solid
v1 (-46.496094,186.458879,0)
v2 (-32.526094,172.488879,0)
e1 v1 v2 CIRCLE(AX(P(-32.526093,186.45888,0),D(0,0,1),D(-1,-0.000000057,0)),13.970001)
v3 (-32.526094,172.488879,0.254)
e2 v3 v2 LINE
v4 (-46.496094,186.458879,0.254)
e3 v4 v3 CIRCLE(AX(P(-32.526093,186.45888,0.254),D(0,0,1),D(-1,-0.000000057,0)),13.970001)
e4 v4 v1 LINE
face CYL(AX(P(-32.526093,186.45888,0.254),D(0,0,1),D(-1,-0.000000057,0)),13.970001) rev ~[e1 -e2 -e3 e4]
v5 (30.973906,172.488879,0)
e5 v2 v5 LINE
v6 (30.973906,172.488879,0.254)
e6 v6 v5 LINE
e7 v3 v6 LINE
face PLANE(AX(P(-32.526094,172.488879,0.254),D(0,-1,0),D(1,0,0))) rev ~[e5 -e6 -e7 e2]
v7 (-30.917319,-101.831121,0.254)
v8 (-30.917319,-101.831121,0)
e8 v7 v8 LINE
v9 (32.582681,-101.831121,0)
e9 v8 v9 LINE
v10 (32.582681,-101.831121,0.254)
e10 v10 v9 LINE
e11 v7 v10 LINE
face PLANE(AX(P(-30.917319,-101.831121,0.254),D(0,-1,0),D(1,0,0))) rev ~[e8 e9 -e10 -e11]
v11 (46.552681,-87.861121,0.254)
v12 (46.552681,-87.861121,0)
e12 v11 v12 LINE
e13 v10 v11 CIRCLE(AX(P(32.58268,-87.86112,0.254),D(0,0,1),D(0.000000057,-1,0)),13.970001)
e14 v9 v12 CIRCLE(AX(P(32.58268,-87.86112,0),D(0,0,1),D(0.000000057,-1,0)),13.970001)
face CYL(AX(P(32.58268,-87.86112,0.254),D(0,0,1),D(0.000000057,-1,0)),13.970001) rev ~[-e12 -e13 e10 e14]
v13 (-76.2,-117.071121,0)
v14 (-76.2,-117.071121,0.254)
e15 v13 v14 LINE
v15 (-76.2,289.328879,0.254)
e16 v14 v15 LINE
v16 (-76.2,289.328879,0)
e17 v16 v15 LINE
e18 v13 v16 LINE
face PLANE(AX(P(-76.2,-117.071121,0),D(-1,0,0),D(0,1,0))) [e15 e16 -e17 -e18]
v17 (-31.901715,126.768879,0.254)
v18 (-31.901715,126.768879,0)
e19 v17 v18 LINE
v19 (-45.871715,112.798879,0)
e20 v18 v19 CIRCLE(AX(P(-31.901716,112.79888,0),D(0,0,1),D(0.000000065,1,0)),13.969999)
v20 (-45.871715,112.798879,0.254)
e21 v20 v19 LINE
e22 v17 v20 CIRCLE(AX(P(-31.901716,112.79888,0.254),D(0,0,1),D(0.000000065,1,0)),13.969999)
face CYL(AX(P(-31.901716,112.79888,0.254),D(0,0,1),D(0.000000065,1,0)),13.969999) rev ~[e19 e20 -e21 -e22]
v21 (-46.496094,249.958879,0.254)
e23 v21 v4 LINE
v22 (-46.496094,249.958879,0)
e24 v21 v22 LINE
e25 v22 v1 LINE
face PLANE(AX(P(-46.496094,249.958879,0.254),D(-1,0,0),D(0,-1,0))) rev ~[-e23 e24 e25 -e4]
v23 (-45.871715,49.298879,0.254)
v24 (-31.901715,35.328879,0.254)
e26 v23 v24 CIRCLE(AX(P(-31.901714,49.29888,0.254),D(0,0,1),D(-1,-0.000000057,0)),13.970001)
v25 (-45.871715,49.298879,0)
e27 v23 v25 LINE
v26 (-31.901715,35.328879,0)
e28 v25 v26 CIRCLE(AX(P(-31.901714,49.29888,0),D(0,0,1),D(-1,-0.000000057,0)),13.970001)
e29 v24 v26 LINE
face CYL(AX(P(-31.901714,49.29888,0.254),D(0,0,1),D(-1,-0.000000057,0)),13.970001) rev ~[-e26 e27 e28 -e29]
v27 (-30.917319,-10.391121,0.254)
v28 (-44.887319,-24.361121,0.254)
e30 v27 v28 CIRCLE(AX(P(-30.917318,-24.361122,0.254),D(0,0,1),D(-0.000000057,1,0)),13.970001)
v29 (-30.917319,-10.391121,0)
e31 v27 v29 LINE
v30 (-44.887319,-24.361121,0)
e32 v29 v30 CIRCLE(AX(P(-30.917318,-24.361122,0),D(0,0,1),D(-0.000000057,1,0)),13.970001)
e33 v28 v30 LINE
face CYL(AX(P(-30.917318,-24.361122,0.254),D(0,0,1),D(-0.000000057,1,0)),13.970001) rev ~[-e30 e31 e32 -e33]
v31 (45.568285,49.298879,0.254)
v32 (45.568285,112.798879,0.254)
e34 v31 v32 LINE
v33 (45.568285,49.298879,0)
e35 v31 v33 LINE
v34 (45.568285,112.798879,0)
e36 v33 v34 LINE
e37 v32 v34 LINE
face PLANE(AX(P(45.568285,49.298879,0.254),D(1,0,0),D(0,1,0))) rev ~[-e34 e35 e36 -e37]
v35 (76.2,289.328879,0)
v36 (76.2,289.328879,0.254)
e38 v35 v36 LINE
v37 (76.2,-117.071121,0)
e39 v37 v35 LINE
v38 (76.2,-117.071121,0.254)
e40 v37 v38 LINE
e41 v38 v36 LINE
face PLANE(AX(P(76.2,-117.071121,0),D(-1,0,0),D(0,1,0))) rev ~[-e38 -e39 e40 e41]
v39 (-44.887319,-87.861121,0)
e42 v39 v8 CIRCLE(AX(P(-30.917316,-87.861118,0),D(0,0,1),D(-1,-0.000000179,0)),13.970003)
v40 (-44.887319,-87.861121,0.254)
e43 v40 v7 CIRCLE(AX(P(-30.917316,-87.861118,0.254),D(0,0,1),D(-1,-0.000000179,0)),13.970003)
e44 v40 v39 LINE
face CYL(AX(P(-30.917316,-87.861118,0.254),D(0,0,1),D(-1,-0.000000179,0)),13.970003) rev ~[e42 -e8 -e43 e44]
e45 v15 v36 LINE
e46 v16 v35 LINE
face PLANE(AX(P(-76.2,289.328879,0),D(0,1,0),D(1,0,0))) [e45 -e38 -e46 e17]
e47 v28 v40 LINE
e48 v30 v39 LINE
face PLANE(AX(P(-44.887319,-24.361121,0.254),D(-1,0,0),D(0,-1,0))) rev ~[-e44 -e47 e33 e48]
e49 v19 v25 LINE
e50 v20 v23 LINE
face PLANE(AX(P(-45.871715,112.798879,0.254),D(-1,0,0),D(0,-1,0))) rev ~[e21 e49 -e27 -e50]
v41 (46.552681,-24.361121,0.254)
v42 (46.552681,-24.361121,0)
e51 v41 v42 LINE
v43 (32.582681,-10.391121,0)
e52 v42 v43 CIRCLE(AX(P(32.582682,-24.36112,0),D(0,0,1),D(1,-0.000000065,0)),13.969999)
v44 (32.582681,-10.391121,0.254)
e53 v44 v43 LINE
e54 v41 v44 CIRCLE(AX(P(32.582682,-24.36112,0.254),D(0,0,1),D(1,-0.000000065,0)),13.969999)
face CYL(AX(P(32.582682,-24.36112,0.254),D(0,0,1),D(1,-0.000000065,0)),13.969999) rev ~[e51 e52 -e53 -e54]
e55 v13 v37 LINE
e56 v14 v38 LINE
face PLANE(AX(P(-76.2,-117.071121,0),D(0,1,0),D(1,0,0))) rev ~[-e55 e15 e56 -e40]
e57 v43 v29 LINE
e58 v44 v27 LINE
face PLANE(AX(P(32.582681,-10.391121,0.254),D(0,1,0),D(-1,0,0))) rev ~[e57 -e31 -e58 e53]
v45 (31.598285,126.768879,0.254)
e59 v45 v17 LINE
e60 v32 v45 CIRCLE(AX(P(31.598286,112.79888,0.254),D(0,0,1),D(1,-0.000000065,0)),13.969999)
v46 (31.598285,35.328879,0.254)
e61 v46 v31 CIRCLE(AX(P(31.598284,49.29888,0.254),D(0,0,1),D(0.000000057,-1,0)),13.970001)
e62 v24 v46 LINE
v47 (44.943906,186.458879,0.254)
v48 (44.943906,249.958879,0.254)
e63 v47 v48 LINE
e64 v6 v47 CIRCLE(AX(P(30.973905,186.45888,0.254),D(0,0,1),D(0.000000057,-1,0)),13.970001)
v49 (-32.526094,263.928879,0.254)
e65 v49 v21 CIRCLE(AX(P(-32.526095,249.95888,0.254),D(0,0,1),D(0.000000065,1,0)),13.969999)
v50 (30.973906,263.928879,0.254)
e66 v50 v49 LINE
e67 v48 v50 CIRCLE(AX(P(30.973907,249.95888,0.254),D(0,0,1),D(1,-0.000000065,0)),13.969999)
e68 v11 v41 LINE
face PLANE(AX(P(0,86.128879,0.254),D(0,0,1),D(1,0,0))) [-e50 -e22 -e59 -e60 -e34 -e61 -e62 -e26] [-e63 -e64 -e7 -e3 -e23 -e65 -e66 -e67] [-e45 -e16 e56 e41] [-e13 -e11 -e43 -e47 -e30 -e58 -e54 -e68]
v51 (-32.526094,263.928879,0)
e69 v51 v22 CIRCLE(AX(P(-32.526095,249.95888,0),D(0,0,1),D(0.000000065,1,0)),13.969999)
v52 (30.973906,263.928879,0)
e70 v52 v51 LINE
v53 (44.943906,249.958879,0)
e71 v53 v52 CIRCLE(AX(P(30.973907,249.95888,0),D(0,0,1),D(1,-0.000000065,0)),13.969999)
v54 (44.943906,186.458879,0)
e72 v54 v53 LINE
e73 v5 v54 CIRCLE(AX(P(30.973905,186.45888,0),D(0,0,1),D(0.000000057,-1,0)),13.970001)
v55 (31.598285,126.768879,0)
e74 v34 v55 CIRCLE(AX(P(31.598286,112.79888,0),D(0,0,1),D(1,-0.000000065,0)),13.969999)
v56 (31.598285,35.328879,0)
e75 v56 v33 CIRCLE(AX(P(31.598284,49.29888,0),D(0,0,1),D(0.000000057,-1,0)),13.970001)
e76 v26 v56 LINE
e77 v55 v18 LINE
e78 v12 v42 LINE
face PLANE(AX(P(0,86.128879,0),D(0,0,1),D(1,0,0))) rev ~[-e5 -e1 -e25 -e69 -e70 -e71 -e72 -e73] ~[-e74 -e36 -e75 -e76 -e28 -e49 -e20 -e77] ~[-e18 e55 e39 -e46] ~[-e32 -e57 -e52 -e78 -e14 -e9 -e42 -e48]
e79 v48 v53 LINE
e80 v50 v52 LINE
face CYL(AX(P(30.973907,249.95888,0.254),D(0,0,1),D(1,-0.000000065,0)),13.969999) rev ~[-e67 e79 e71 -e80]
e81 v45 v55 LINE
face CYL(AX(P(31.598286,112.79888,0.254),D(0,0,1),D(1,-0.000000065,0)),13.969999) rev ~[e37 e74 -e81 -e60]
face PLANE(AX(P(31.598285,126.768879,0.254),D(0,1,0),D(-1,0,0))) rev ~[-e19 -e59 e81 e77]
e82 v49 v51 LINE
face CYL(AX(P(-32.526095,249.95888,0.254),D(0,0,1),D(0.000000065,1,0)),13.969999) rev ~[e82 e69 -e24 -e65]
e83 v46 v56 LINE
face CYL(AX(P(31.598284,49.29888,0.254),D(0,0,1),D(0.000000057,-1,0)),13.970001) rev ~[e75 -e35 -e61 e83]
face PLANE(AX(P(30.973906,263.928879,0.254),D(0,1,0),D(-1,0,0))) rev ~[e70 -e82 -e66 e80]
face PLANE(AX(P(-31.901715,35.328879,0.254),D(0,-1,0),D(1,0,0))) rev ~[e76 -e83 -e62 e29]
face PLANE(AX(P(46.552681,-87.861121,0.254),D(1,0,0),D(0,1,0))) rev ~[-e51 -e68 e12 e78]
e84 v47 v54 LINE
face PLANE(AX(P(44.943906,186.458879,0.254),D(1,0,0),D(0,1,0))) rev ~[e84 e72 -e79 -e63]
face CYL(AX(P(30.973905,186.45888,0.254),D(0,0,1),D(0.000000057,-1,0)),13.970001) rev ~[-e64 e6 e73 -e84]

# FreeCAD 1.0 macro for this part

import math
import FreeCAD as App
import Part
import Sketcher

V = App.Vector
Q = App.Units.Quantity

doc = App.newDocument("Part")
body = doc.addObject("PartDesign::Body", "Body")

# Sketch on XY plane
sketch1 = body.newObject("Sketcher::SketchObject", "Sketch")
sketch1.AttachmentSupport = (doc.getObject("XY_Plane"), [""])
sketch1.MapMode = "FlatFace"
sketch1.addGeometry(Part.LineSegment(V(-76.2, 289.328879, 0), V(-76.2, -117.071121, 0)), False)
sketch1.addGeometry(Part.LineSegment(V(-76.2, -117.071121, 0), V(76.2, -117.071121, 0)), False)
sketch1.addGeometry(Part.LineSegment(V(76.2, -117.071121, 0), V(76.2, 289.328879, 0)), False)
sketch1.addGeometry(Part.LineSegment(V(76.2, 289.328879, 0), V(-76.2, 289.328879, 0)), False)
sketch1.addConstraint(Sketcher.Constraint("Coincident", 0, 2, 1, 1))
sketch1.addConstraint(Sketcher.Constraint("Coincident", 1, 2, 2, 1))
sketch1.addConstraint(Sketcher.Constraint("Coincident", 2, 2, 3, 1))
sketch1.addConstraint(Sketcher.Constraint("Coincident", 3, 2, 0, 1))
sketch1.addConstraint(Sketcher.Constraint("Vertical", 0))
sketch1.addConstraint(Sketcher.Constraint("Horizontal", 1))
sketch1.addConstraint(Sketcher.Constraint("Vertical", 2))
sketch1.addConstraint(Sketcher.Constraint("Horizontal", 3))
sketch1.addConstraint(Sketcher.Constraint("DistanceX", 1, 1, 1, 2, Q("6 in")))
sketch1.addConstraint(Sketcher.Constraint("DistanceY", 0, 2, 0, 1, Q("16 in")))
sketch1.addConstraint(Sketcher.Constraint("DistanceX", 0, 2, -1, 1, Q("3 in")))
sketch1.addConstraint(Sketcher.Constraint("DistanceY", 0, 2, -1, 1, 117.071121))
pad1 = body.newObject("PartDesign::Pad", "Pad")
pad1.Profile = sketch1
pad1.Length = Q("0.01 in")

# Sketch on XY plane
sketch2 = body.newObject("Sketcher::SketchObject", "Sketch001")
sketch2.AttachmentSupport = (doc.getObject("XY_Plane"), [""])
sketch2.MapMode = "FlatFace"
sketch2.AttachmentOffset = App.Placement(V(0, 0, 0.01 * 25.4), App.Rotation())
sketch2.addGeometry(Part.LineSegment(V(31.598285, 126.768879, 0), V(-31.901715, 126.768879, 0)), False)
sketch2.addGeometry(Part.ArcOfCircle(Part.Circle(V(-31.901716, 112.79888, 0), V(0, 0, 1), 13.969999), math.radians(89.999996), math.radians(180.000004)), False)
sketch2.addGeometry(Part.LineSegment(V(-45.871715, 112.798879, 0), V(-45.871715, 49.298879, 0)), False)
sketch2.addGeometry(Part.ArcOfCircle(Part.Circle(V(-31.901714, 49.29888, 0), V(0, 0, 1), 13.970001), math.radians(-179.999997), math.radians(-90.000003)), False)
sketch2.addGeometry(Part.LineSegment(V(-31.901715, 35.328879, 0), V(31.598285, 35.328879, 0)), False)
sketch2.addGeometry(Part.ArcOfCircle(Part.Circle(V(31.598284, 49.29888, 0), V(0, 0, 1), 13.970001), math.radians(-89.999997), math.radians(-0.000003)), False)
sketch2.addGeometry(Part.LineSegment(V(45.568285, 49.298879, 0), V(45.568285, 112.798879, 0)), False)
sketch2.addGeometry(Part.ArcOfCircle(Part.Circle(V(31.598286, 112.79888, 0), V(0, 0, 1), 13.969999), math.radians(-0.000004), math.radians(90.000004)), False)
sketch2.addConstraint(Sketcher.Constraint("Tangent", 0, 2, 1, 1))
sketch2.addConstraint(Sketcher.Constraint("Tangent", 1, 2, 2, 1))
sketch2.addConstraint(Sketcher.Constraint("Tangent", 2, 2, 3, 1))
sketch2.addConstraint(Sketcher.Constraint("Tangent", 3, 2, 4, 1))
sketch2.addConstraint(Sketcher.Constraint("Tangent", 4, 2, 5, 1))
sketch2.addConstraint(Sketcher.Constraint("Tangent", 5, 2, 6, 1))
sketch2.addConstraint(Sketcher.Constraint("Tangent", 6, 2, 7, 1))
sketch2.addConstraint(Sketcher.Constraint("Tangent", 7, 2, 0, 1))
sketch2.addConstraint(Sketcher.Constraint("Horizontal", 0))
sketch2.addConstraint(Sketcher.Constraint("Vertical", 2))
sketch2.addConstraint(Sketcher.Constraint("Horizontal", 4))
sketch2.addConstraint(Sketcher.Constraint("Vertical", 6))
sketch2.addConstraint(Sketcher.Constraint("Equal", 1, 3))
sketch2.addConstraint(Sketcher.Constraint("Equal", 3, 5))
sketch2.addConstraint(Sketcher.Constraint("Equal", 5, 7))
sketch2.addConstraint(Sketcher.Constraint("Equal", 4, 2))
sketch2.addConstraint(Sketcher.Constraint("Radius", 1, Q("0.55 in")))
sketch2.addConstraint(Sketcher.Constraint("DistanceX", 0, 2, 0, 1, Q("2.5 in")))
sketch2.addConstraint(Sketcher.Constraint("DistanceY", -1, 1, 1, 3, 112.79888))
sketch2.addConstraint(Sketcher.Constraint("DistanceX", 1, 3, -1, 1, 31.901716))
pocket1 = body.newObject("PartDesign::Pocket", "Pocket")
pocket1.Profile = sketch2
pocket1.Type = "ThroughAll"

# Sketch on XY plane
sketch3 = body.newObject("Sketcher::SketchObject", "Sketch002")
sketch3.AttachmentSupport = (doc.getObject("XY_Plane"), [""])
sketch3.MapMode = "FlatFace"
sketch3.AttachmentOffset = App.Placement(V(0, 0, 0.01 * 25.4), App.Rotation())
sketch3.addGeometry(Part.LineSegment(V(30.973906, 263.928879, 0), V(-32.526094, 263.928879, 0)), False)
sketch3.addGeometry(Part.ArcOfCircle(Part.Circle(V(-32.526095, 249.95888, 0), V(0, 0, 1), 13.969999), math.radians(89.999996), math.radians(180.000004)), False)
sketch3.addGeometry(Part.LineSegment(V(-46.496094, 249.958879, 0), V(-46.496094, 186.458879, 0)), False)
sketch3.addGeometry(Part.ArcOfCircle(Part.Circle(V(-32.526093, 186.45888, 0), V(0, 0, 1), 13.970001), math.radians(-179.999997), math.radians(-90.000003)), False)
sketch3.addGeometry(Part.LineSegment(V(-32.526094, 172.488879, 0), V(30.973906, 172.488879, 0)), False)
sketch3.addGeometry(Part.ArcOfCircle(Part.Circle(V(30.973905, 186.45888, 0), V(0, 0, 1), 13.970001), math.radians(-89.999997), math.radians(-0.000003)), False)
sketch3.addGeometry(Part.LineSegment(V(44.943906, 186.458879, 0), V(44.943906, 249.958879, 0)), False)
sketch3.addGeometry(Part.ArcOfCircle(Part.Circle(V(30.973907, 249.95888, 0), V(0, 0, 1), 13.969999), math.radians(-0.000004), math.radians(90.000004)), False)
sketch3.addConstraint(Sketcher.Constraint("Tangent", 0, 2, 1, 1))
sketch3.addConstraint(Sketcher.Constraint("Tangent", 1, 2, 2, 1))
sketch3.addConstraint(Sketcher.Constraint("Tangent", 2, 2, 3, 1))
sketch3.addConstraint(Sketcher.Constraint("Tangent", 3, 2, 4, 1))
sketch3.addConstraint(Sketcher.Constraint("Tangent", 4, 2, 5, 1))
sketch3.addConstraint(Sketcher.Constraint("Tangent", 5, 2, 6, 1))
sketch3.addConstraint(Sketcher.Constraint("Tangent", 6, 2, 7, 1))
sketch3.addConstraint(Sketcher.Constraint("Tangent", 7, 2, 0, 1))
sketch3.addConstraint(Sketcher.Constraint("Horizontal", 0))
sketch3.addConstraint(Sketcher.Constraint("Vertical", 2))
sketch3.addConstraint(Sketcher.Constraint("Horizontal", 4))
sketch3.addConstraint(Sketcher.Constraint("Vertical", 6))
sketch3.addConstraint(Sketcher.Constraint("Equal", 1, 3))
sketch3.addConstraint(Sketcher.Constraint("Equal", 3, 5))
sketch3.addConstraint(Sketcher.Constraint("Equal", 5, 7))
sketch3.addConstraint(Sketcher.Constraint("Equal", 4, 2))
sketch3.addConstraint(Sketcher.Constraint("Radius", 1, Q("0.55 in")))
sketch3.addConstraint(Sketcher.Constraint("DistanceX", 0, 2, 0, 1, Q("2.5 in")))
sketch3.addConstraint(Sketcher.Constraint("DistanceY", -1, 1, 1, 3, 249.95888))
sketch3.addConstraint(Sketcher.Constraint("DistanceX", 1, 3, -1, 1, 32.526095))
pocket2 = body.newObject("PartDesign::Pocket", "Pocket001")
pocket2.Profile = sketch3
pocket2.Type = "ThroughAll"

# Sketch on XY plane
sketch4 = body.newObject("Sketcher::SketchObject", "Sketch003")
sketch4.AttachmentSupport = (doc.getObject("XY_Plane"), [""])
sketch4.MapMode = "FlatFace"
sketch4.AttachmentOffset = App.Placement(V(0, 0, 0.01 * 25.4), App.Rotation())
sketch4.addGeometry(Part.LineSegment(V(32.582681, -10.391121, 0), V(-30.917319, -10.391121, 0)), False)
sketch4.addGeometry(Part.ArcOfCircle(Part.Circle(V(-30.917318, -24.361122, 0), V(0, 0, 1), 13.970001), math.radians(90.000003), math.radians(179.999997)), False)
sketch4.addGeometry(Part.LineSegment(V(-44.887319, -24.361121, 0), V(-44.887319, -87.861121, 0)), False)
sketch4.addGeometry(Part.ArcOfCircle(Part.Circle(V(-30.917316, -87.861118, 0), V(0, 0, 1), 13.970003), math.radians(-179.99999), math.radians(-90.00001)), False)
sketch4.addGeometry(Part.LineSegment(V(-30.917319, -101.831121, 0), V(32.582681, -101.831121, 0)), False)
sketch4.addGeometry(Part.ArcOfCircle(Part.Circle(V(32.58268, -87.86112, 0), V(0, 0, 1), 13.970001), math.radians(-89.999997), math.radians(-0.000003)), False)
sketch4.addGeometry(Part.LineSegment(V(46.552681, -87.861121, 0), V(46.552681, -24.361121, 0)), False)
sketch4.addGeometry(Part.ArcOfCircle(Part.Circle(V(32.582682, -24.36112, 0), V(0, 0, 1), 13.969999), math.radians(-0.000004), math.radians(90.000004)), False)
sketch4.addConstraint(Sketcher.Constraint("Tangent", 0, 2, 1, 1))
sketch4.addConstraint(Sketcher.Constraint("Tangent", 1, 2, 2, 1))
sketch4.addConstraint(Sketcher.Constraint("Tangent", 2, 2, 3, 1))
sketch4.addConstraint(Sketcher.Constraint("Tangent", 3, 2, 4, 1))
sketch4.addConstraint(Sketcher.Constraint("Tangent", 4, 2, 5, 1))
sketch4.addConstraint(Sketcher.Constraint("Tangent", 5, 2, 6, 1))
sketch4.addConstraint(Sketcher.Constraint("Tangent", 6, 2, 7, 1))
sketch4.addConstraint(Sketcher.Constraint("Tangent", 7, 2, 0, 1))
sketch4.addConstraint(Sketcher.Constraint("Horizontal", 0))
sketch4.addConstraint(Sketcher.Constraint("Vertical", 2))
sketch4.addConstraint(Sketcher.Constraint("Horizontal", 4))
sketch4.addConstraint(Sketcher.Constraint("Vertical", 6))
sketch4.addConstraint(Sketcher.Constraint("Equal", 1, 3))
sketch4.addConstraint(Sketcher.Constraint("Equal", 3, 5))
sketch4.addConstraint(Sketcher.Constraint("Equal", 5, 7))
sketch4.addConstraint(Sketcher.Constraint("Equal", 4, 2))
sketch4.addConstraint(Sketcher.Constraint("Radius", 1, Q("0.55 in")))
sketch4.addConstraint(Sketcher.Constraint("DistanceX", 0, 2, 0, 1, Q("2.5 in")))
sketch4.addConstraint(Sketcher.Constraint("DistanceX", 1, 3, -1, 1, 30.917318))
sketch4.addConstraint(Sketcher.Constraint("DistanceY", 1, 3, -1, 1, 24.361122))
pocket3 = body.newObject("PartDesign::Pocket", "Pocket002")
pocket3.Profile = sketch4
pocket3.Type = "ThroughAll"

doc.recompute()
